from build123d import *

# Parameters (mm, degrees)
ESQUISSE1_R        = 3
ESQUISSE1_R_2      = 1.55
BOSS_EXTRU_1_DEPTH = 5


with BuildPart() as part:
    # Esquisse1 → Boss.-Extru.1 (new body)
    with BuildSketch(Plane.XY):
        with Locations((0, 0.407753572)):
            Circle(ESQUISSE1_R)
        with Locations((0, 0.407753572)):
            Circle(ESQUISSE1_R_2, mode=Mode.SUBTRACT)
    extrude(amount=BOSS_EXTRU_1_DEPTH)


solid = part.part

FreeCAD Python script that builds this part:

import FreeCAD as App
import Part
import Sketcher

V = App.Vector
Q = App.Units.Quantity

doc = App.newDocument("Part")
body = doc.addObject("PartDesign::Body", "Body")

# Sketch on XY plane
sketch1 = body.newObject("Sketcher::SketchObject", "Sketch")
sketch1.AttachmentSupport = (doc.getObject("XY_Plane"), [""])
sketch1.MapMode = "FlatFace"
sketch1.addGeometry(Part.Circle(V(0, 0.4, 0), V(0, 0, 1), 3), False)
sketch1.addGeometry(Part.Circle(V(0, 0.4, 0), V(0, 0, 1), 1.6), False)
sketch1.addConstraint(Sketcher.Constraint("Coincident", 1, 3, 0, 3))
sketch1.addConstraint(Sketcher.Constraint("PointOnObject", 0, 3, -2))
sketch1.addConstraint(Sketcher.Constraint("Diameter", 0, Q("6 mm")))
sketch1.addConstraint(Sketcher.Constraint("Diameter", 1, Q("3.1 mm")))
sketch1.addConstraint(Sketcher.Constraint("DistanceY", -1, 1, 0, 3, Q("0.407754 mm")))
pad1 = body.newObject("PartDesign::Pad", "Pad")
pad1.Profile = sketch1
pad1.Length = 5

doc.recompute()
